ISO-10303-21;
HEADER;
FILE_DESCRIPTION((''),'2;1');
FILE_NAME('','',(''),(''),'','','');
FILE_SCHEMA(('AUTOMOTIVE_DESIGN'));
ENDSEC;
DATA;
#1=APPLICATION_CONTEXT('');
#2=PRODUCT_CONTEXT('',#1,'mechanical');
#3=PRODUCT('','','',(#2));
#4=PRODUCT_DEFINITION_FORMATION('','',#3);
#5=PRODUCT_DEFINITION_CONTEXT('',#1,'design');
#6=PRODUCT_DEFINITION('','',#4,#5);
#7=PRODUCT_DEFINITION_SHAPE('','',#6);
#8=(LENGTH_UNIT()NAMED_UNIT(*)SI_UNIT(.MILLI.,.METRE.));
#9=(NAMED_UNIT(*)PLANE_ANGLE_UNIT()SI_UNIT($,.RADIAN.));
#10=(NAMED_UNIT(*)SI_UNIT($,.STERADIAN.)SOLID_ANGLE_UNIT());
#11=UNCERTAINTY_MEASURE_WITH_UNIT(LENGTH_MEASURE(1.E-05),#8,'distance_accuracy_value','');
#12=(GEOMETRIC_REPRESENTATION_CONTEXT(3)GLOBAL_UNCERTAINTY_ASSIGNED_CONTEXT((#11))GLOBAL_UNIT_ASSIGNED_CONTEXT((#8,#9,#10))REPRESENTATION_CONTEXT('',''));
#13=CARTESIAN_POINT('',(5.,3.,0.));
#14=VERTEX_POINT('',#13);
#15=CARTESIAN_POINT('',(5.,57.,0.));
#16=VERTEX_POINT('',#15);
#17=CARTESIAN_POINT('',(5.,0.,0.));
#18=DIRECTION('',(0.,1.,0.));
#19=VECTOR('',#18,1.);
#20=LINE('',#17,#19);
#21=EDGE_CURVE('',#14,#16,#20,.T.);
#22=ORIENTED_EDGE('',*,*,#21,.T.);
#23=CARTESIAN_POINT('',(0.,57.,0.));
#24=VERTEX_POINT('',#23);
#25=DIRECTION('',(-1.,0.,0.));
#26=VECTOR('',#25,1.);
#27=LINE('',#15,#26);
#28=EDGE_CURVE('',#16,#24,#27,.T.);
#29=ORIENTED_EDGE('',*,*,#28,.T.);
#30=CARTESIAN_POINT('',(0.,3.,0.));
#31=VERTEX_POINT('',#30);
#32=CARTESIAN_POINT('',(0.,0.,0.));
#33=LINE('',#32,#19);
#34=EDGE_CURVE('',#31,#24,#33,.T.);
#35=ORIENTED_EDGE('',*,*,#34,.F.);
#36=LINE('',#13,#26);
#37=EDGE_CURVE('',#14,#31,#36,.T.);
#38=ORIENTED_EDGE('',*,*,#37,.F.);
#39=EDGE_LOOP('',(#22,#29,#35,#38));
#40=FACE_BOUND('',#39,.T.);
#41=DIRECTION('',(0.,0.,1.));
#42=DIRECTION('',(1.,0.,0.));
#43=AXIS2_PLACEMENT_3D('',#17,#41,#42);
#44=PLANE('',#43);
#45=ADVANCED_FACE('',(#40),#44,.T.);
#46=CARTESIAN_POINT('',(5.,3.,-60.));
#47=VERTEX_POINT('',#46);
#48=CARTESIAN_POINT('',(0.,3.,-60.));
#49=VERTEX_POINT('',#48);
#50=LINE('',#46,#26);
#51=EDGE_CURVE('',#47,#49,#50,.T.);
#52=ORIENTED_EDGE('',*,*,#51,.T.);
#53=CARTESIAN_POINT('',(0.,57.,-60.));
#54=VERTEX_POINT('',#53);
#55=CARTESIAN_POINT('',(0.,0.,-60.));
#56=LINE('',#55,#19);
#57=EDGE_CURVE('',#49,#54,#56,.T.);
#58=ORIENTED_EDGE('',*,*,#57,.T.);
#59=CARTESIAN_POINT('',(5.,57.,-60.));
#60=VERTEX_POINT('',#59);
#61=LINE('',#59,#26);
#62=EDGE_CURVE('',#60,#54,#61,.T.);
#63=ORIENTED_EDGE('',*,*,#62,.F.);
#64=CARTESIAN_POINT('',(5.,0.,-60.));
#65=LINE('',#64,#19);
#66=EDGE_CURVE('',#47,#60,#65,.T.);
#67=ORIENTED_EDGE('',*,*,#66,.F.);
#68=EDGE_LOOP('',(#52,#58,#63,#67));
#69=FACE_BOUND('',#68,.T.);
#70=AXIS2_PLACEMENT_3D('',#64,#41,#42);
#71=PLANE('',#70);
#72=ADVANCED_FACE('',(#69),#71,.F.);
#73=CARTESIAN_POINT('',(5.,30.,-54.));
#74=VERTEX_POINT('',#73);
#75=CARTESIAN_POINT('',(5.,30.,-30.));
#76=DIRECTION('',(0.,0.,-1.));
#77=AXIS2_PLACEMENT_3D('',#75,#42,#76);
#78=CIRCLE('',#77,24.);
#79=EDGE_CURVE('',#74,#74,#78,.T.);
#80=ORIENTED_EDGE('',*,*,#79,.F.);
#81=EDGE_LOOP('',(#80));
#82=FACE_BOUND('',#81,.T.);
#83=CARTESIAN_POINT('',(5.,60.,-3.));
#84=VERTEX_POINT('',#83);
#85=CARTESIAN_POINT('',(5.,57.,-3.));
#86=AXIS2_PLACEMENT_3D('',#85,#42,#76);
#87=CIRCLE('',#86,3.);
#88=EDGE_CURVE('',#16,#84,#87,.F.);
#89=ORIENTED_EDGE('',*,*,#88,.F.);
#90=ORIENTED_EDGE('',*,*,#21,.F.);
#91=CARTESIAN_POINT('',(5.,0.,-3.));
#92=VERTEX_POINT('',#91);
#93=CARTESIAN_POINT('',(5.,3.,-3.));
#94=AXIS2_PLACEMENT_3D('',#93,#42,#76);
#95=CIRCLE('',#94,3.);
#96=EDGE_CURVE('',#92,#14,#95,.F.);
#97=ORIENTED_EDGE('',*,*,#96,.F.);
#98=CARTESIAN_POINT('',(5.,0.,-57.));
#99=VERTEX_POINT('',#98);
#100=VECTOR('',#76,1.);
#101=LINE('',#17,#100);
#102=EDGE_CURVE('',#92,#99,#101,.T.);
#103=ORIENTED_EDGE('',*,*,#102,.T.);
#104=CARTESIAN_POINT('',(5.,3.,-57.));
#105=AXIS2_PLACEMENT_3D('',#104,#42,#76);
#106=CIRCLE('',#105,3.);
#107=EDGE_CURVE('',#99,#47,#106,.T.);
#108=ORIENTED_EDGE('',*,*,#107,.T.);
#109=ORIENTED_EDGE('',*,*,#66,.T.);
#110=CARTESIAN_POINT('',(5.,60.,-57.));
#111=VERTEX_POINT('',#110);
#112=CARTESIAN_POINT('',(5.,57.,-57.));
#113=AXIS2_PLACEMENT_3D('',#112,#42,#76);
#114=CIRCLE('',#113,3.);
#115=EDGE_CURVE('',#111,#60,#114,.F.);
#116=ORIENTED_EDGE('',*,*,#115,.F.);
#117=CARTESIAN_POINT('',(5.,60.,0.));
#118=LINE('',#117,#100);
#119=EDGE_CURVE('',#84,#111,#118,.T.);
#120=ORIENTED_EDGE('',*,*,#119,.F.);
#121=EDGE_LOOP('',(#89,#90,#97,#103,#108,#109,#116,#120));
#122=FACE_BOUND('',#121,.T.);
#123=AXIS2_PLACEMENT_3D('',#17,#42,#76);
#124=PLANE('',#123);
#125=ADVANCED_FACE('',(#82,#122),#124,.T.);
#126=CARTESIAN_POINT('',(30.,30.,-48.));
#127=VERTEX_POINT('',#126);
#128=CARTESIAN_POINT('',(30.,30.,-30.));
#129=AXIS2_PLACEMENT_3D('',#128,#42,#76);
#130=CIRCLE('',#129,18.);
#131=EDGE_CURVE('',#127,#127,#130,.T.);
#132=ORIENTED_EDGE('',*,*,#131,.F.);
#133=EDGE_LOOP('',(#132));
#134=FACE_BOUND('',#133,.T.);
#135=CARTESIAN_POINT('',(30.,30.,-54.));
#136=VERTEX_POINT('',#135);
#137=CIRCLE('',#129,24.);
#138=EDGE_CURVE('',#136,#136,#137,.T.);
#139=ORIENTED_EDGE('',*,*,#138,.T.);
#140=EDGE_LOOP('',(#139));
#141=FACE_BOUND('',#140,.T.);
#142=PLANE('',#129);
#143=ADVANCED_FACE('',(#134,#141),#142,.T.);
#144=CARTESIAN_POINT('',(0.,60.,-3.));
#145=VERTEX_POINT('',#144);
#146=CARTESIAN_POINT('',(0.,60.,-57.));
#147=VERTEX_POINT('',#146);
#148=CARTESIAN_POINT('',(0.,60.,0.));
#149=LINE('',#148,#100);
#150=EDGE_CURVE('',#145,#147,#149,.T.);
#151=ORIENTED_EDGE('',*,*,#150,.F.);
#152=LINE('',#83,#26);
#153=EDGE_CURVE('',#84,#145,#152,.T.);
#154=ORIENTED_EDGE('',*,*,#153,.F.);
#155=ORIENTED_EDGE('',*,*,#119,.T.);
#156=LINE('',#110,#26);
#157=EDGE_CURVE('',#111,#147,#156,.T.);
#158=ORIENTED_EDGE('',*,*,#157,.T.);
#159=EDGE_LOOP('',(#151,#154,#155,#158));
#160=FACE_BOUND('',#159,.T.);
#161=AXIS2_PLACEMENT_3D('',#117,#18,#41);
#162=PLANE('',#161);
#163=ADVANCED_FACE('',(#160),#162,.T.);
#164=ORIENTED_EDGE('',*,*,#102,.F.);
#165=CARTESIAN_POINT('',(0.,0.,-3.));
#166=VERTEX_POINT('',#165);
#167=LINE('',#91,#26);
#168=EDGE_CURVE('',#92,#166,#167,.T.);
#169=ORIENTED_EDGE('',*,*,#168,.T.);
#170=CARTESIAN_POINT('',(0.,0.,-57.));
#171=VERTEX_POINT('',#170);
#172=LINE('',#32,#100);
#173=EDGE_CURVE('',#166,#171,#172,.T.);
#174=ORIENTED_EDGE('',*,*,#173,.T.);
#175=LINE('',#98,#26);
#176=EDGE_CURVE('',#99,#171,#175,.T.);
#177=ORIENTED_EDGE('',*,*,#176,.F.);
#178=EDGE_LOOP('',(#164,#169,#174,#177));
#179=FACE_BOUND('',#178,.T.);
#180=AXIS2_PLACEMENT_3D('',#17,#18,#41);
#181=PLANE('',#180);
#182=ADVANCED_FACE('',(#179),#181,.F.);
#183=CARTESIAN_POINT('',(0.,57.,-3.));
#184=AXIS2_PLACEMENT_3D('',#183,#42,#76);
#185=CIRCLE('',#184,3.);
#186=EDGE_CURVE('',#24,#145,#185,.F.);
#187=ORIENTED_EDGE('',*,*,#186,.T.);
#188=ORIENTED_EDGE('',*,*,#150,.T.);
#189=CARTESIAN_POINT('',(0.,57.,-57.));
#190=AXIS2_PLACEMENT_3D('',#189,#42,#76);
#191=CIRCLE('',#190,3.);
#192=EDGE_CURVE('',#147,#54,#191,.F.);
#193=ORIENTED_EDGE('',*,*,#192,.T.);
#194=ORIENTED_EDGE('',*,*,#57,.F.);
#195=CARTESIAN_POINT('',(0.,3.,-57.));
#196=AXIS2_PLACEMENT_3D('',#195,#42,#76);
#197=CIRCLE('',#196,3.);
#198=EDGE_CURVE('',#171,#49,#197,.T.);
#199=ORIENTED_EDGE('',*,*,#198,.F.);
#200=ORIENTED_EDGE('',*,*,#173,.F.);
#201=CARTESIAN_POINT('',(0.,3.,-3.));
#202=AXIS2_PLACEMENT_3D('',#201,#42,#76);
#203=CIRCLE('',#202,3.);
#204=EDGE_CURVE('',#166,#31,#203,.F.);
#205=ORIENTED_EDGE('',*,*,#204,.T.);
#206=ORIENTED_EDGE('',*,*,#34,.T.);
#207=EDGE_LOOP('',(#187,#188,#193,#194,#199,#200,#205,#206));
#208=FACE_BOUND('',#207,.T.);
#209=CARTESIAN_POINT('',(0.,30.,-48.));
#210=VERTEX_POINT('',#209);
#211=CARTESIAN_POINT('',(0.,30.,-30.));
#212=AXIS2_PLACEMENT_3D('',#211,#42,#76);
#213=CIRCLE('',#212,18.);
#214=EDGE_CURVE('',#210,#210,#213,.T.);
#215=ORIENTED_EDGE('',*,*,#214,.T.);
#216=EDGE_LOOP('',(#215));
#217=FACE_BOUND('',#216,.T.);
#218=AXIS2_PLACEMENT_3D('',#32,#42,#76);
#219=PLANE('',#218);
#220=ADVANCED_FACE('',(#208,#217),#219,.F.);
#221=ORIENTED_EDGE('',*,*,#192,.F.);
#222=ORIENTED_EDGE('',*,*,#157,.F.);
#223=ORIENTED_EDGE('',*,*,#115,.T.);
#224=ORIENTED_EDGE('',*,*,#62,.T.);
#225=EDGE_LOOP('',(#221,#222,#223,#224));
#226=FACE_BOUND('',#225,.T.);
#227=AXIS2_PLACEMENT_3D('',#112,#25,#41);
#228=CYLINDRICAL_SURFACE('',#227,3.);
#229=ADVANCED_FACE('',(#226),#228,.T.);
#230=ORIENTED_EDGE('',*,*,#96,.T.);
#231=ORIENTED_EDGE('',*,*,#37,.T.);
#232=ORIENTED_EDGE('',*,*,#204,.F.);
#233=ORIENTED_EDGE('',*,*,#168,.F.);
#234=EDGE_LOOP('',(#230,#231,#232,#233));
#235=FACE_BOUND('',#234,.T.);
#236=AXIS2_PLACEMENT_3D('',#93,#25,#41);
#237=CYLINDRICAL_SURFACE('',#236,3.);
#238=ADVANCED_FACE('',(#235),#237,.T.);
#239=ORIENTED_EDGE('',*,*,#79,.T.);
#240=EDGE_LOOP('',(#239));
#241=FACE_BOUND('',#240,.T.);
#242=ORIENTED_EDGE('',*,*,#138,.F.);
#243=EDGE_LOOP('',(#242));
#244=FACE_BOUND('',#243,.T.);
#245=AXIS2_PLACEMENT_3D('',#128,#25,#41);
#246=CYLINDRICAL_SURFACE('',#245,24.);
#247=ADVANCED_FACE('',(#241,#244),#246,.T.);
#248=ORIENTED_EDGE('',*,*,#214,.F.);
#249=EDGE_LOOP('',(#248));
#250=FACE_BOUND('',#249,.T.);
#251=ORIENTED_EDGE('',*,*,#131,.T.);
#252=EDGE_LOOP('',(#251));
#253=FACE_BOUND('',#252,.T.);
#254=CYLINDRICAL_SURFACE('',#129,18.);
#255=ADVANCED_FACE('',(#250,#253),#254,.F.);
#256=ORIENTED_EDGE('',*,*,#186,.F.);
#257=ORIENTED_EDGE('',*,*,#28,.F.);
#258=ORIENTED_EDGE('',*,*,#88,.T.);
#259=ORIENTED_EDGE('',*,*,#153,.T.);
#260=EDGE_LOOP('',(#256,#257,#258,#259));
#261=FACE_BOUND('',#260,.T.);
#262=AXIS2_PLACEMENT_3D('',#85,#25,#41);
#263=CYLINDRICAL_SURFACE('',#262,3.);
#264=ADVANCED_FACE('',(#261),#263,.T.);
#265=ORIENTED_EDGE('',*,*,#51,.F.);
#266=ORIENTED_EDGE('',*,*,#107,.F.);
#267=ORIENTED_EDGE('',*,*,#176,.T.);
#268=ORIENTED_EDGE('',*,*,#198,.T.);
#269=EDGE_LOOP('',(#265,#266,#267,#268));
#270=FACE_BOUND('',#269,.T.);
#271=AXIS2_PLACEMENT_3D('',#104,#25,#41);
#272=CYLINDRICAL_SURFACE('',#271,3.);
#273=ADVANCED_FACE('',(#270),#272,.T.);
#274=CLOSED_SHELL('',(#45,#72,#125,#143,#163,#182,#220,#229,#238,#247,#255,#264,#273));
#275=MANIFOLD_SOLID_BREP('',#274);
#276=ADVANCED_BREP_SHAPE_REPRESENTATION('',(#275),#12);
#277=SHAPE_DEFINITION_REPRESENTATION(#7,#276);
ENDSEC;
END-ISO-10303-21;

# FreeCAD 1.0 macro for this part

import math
import FreeCAD as App
import Part
import Sketcher
from FreeCAD import Vector
Q = App.Units.Quantity

doc = App.newDocument("Part")
body = doc.addObject("PartDesign::Body", "Body")

sketch1 = body.newObject("Sketcher::SketchObject", "Sketch")
sketch1.AttachmentSupport = (doc.getObject("YZ_Plane"), [""])
sketch1.MapMode = "FlatFace"
sketch1.addGeometry(Part.ArcOfCircle(Part.Circle(Vector(57, -3, 0), Vector(0, 0, 1), 3), math.radians(0), math.radians(90)), False)
sketch1.addGeometry(Part.LineSegment(Vector(57, 0, 0), Vector(3, 0, 0)), False)
sketch1.addGeometry(Part.ArcOfCircle(Part.Circle(Vector(3, -3, 0), Vector(0, 0, 1), 3), math.radians(90), math.radians(180)), False)
sketch1.addGeometry(Part.LineSegment(Vector(0, -3, 0), Vector(0, -57, 0)), False)
sketch1.addGeometry(Part.ArcOfCircle(Part.Circle(Vector(3, -57, 0), Vector(0, 0, 1), 3), math.radians(180), math.radians(270)), False)
sketch1.addGeometry(Part.LineSegment(Vector(3, -60, 0), Vector(57, -60, 0)), False)
sketch1.addGeometry(Part.ArcOfCircle(Part.Circle(Vector(57, -57, 0), Vector(0, 0, 1), 3), math.radians(-90), math.radians(0)), False)
sketch1.addGeometry(Part.LineSegment(Vector(60, -57, 0), Vector(60, -3, 0)), False)
sketch1.addConstraint(Sketcher.Constraint("Tangent", 0, 2, 1, 1))
sketch1.addConstraint(Sketcher.Constraint("Tangent", 1, 2, 2, 1))
sketch1.addConstraint(Sketcher.Constraint("Tangent", 2, 2, 3, 1))
sketch1.addConstraint(Sketcher.Constraint("Tangent", 3, 2, 4, 1))
sketch1.addConstraint(Sketcher.Constraint("Tangent", 4, 2, 5, 1))
sketch1.addConstraint(Sketcher.Constraint("Tangent", 5, 2, 6, 1))
sketch1.addConstraint(Sketcher.Constraint("Tangent", 6, 2, 7, 1))
sketch1.addConstraint(Sketcher.Constraint("Tangent", 7, 2, 0, 1))
sketch1.addConstraint(Sketcher.Constraint("Horizontal", 1))
sketch1.addConstraint(Sketcher.Constraint("Vertical", 3))
sketch1.addConstraint(Sketcher.Constraint("Horizontal", 5))
sketch1.addConstraint(Sketcher.Constraint("Vertical", 7))
sketch1.addConstraint(Sketcher.Constraint("Equal", 0, 2))
sketch1.addConstraint(Sketcher.Constraint("Equal", 2, 4))
sketch1.addConstraint(Sketcher.Constraint("Equal", 4, 6))
sketch1.addConstraint(Sketcher.Constraint("PointOnObject", 0, 2, -1))
sketch1.addConstraint(Sketcher.Constraint("PointOnObject", 2, 2, -2))
sketch1.addConstraint(Sketcher.Constraint("Equal", 5, 3))
sketch1.addConstraint(Sketcher.Constraint("Radius", 0, Q("3 mm")))
sketch1.addConstraint(Sketcher.Constraint("DistanceX", 1, 2, 1, 1, Q("54 mm")))
pad1 = body.newObject("PartDesign::Pad", "Pad")
pad1.Profile = sketch1
pad1.Length = 5

sketch2 = body.newObject("Sketcher::SketchObject", "Sketch001")
sketch2.AttachmentSupport = (doc.getObject("YZ_Plane"), [""])
sketch2.MapMode = "FlatFace"
sketch2.AttachmentOffset = App.Placement(Vector(0, 0, 5), App.Rotation())
sketch2.addGeometry(Part.Circle(Vector(30, -30, 0), Vector(0, 0, 1), 24), False)
sketch2.addConstraint(Sketcher.Constraint("Diameter", 0, Q("48 mm")))
sketch2.addConstraint(Sketcher.Constraint("DistanceX", -1, 1, 0, 3, Q("30 mm")))
sketch2.addConstraint(Sketcher.Constraint("DistanceY", 0, 3, -1, 1, Q("30 mm")))
pad2 = body.newObject("PartDesign::Pad", "Pad001")
pad2.Profile = sketch2
pad2.Length = 25

sketch3 = body.newObject("Sketcher::SketchObject", "Sketch002")
sketch3.AttachmentSupport = (doc.getObject("YZ_Plane"), [""])
sketch3.MapMode = "FlatFace"
sketch3.AttachmentOffset = App.Placement(Vector(0, 0, 30), App.Rotation())
sketch3.addGeometry(Part.Circle(Vector(30, -30, 0), Vector(0, 0, 1), 18), False)
sketch3.addConstraint(Sketcher.Constraint("Diameter", 0, Q("36 mm")))
sketch3.addConstraint(Sketcher.Constraint("DistanceX", -1, 1, 0, 3, Q("30 mm")))
sketch3.addConstraint(Sketcher.Constraint("DistanceY", 0, 3, -1, 1, Q("30 mm")))
doc.recompute()
hole = body.newObject("PartDesign::Hole", "Hole")
hole.Profile = sketch3
hole.ThreadType = "None"
hole.Diameter = 36
hole.DepthType = "ThroughAll"

doc.recompute()
